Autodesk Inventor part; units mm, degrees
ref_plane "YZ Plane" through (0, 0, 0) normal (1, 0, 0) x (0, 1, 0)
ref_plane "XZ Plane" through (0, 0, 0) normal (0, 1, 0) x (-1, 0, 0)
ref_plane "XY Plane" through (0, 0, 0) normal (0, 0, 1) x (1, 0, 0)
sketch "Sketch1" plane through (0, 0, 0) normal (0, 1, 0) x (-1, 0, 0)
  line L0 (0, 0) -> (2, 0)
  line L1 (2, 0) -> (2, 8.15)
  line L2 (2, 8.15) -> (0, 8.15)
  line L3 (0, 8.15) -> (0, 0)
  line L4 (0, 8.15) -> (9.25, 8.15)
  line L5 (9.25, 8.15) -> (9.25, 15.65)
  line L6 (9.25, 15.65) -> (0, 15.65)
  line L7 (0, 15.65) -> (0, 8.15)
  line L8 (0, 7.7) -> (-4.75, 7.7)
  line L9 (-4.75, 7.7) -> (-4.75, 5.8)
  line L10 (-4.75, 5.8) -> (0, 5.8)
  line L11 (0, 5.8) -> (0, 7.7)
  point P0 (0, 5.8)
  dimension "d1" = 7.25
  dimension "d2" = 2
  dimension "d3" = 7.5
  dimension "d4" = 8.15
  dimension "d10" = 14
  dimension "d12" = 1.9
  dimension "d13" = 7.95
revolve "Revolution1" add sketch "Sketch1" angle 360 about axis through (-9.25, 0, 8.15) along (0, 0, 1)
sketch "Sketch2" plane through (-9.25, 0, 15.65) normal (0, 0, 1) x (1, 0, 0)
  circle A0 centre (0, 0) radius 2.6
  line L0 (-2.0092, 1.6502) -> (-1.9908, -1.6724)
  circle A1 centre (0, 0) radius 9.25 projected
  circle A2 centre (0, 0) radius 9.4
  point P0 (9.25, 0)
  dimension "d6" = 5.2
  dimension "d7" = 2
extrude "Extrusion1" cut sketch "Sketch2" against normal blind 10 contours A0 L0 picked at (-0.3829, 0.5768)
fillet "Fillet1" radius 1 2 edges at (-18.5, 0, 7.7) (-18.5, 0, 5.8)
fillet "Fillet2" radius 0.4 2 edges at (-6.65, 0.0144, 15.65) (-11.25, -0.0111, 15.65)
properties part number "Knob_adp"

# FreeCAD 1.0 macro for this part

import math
import FreeCAD as App
import Part
import Sketcher
from FreeCAD import Vector
Q = App.Units.Quantity


def edges_at(feature, points):
    """Names of the edges that pass closest to the given points."""
    edges = feature.Shape.Edges
    near = lambda p: min(range(len(edges)), key=lambda i: edges[i].distToShape(Part.Vertex(*p))[0])
    return sorted({f"Edge{near(p) + 1}" for p in points})


def add_polygon(sketch, points):
    """Adds a closed chain of lines whose ends are joined by coincident constraints."""
    first, n = sketch.GeometryCount, len(points)
    for a, b in zip(points, points[1:] + points[:1]):
        sketch.addGeometry(Part.LineSegment(App.Vector(*a, 0), App.Vector(*b, 0)), False)
    for i in range(n):
        sketch.addConstraint(Sketcher.Constraint("Coincident", first + i, 2, first + (i + 1) % n, 1))

doc = App.newDocument("Part")
body = doc.addObject("PartDesign::Body", "Body")

sketch1 = body.newObject("Sketcher::SketchObject", "Sketch")
sketch1.AttachmentSupport = (doc.getObject("XZ_Plane"), [""])
sketch1.MapMode = "FlatFace"
add_polygon(sketch1, [(0, 5.8), (0, 0), (-2, 0), (-2, 8.2), (-9.2, 8.2), (-9.2, 15.7), (0, 15.7), (0, 7.7), (4.8, 7.7), (4.8, 5.8)])
sketch1.addGeometry(Part.LineSegment(Vector(-9.2, 0, 0), Vector(-9.2, 15.7, 0)), True)
sketch1.addConstraint([
    Sketcher.Constraint("Vertical", 0),
    Sketcher.Constraint("Horizontal", 1),
    Sketcher.Constraint("Vertical", 2),
    Sketcher.Constraint("Horizontal", 3),
    Sketcher.Constraint("Vertical", 4),
    Sketcher.Constraint("Horizontal", 5),
    Sketcher.Constraint("Vertical", 6),
    Sketcher.Constraint("Horizontal", 7),
    Sketcher.Constraint("Vertical", 8),
    Sketcher.Constraint("Horizontal", 9),
    Sketcher.Constraint("Vertical", 10),
    Sketcher.Constraint("Coincident", 0, 2, -1, 1),
    Sketcher.Constraint("Coincident", 10, 2, 4, 2),
    Sketcher.Constraint("PointOnObject", 5, 2, -2),
    Sketcher.Constraint("PointOnObject", 10, 1, -1),
    Sketcher.Constraint("DistanceX", 1, 2, 1, 1, Q("2 mm")),
    Sketcher.Constraint("DistanceY", 4, 1, 4, 2, Q("7.5 mm")),
    Sketcher.Constraint("DistanceY", 8, 2, 8, 1, Q("1.9 mm")),
    Sketcher.Constraint("DistanceX", 3, 2, 3, 1, Q("7.25 mm")),
    Sketcher.Constraint("DistanceY", 2, 1, 2, 2, Q("8.15 mm")),
    Sketcher.Constraint("DistanceY", 6, 2, 6, 1, Q("7.95 mm")),
    Sketcher.Constraint("DistanceX", 7, 1, 7, 2, Q("4.75 mm")),
])
revolution = body.newObject("PartDesign::Revolution", "Revolution")
revolution.Profile = sketch1
revolution.ReferenceAxis = (sketch1, ["Axis0"])
revolution.Angle = 360

sketch2 = body.newObject("Sketcher::SketchObject", "Sketch001")
sketch2.AttachmentSupport = (doc.getObject("XY_Plane"), [""])
sketch2.MapMode = "FlatFace"
sketch2.AttachmentOffset = App.Placement(Vector(0, 0, 15.65), App.Rotation())
sketch2.addGeometry([
    Part.ArcOfCircle(Part.Circle(Vector(-9.2, 0, 0), Vector(0, 0, 1), 2.6), math.radians(-140), math.radians(141)),
    Part.LineSegment(Vector(-11.2, -1.7, 0), Vector(-11.3, 1.7, 0)),
], False)
sketch2.addConstraint([
    Sketcher.Constraint("Coincident", 0, 1, 1, 1),
    Sketcher.Constraint("Coincident", 1, 2, 0, 2),
    Sketcher.Constraint("PointOnObject", 0, 3, -1),
    Sketcher.Constraint("Radius", 0, Q("2.6 mm")),
    Sketcher.Constraint("DistanceX", 0, 3, -1, 1, Q("9.25 mm")),
    Sketcher.Constraint("Distance", 1, Q("3.3227 mm")),
    Sketcher.Constraint("DistanceX", 0, 1, -1, 1, Q("11.2408 mm")),
])
pocket1 = body.newObject("PartDesign::Pocket", "Pocket")
pocket1.Profile = sketch2
pocket1.Length = 10
doc.recompute()

fillet = body.newObject("PartDesign::Fillet", "Fillet")
fillet.Base = (pocket1, edges_at(pocket1, [(-18.5, 0, 7.7), (-18.5, 0, 5.8)]))
fillet.Radius = 1
doc.recompute()

fillet2 = body.newObject("PartDesign::Fillet", "Fillet001")
fillet2.Base = (fillet, edges_at(fillet, [(-6.65, 0.014, 15.65), (-11.25, -0.011, 15.65)]))
fillet2.Radius = 0.4

doc.recompute()
